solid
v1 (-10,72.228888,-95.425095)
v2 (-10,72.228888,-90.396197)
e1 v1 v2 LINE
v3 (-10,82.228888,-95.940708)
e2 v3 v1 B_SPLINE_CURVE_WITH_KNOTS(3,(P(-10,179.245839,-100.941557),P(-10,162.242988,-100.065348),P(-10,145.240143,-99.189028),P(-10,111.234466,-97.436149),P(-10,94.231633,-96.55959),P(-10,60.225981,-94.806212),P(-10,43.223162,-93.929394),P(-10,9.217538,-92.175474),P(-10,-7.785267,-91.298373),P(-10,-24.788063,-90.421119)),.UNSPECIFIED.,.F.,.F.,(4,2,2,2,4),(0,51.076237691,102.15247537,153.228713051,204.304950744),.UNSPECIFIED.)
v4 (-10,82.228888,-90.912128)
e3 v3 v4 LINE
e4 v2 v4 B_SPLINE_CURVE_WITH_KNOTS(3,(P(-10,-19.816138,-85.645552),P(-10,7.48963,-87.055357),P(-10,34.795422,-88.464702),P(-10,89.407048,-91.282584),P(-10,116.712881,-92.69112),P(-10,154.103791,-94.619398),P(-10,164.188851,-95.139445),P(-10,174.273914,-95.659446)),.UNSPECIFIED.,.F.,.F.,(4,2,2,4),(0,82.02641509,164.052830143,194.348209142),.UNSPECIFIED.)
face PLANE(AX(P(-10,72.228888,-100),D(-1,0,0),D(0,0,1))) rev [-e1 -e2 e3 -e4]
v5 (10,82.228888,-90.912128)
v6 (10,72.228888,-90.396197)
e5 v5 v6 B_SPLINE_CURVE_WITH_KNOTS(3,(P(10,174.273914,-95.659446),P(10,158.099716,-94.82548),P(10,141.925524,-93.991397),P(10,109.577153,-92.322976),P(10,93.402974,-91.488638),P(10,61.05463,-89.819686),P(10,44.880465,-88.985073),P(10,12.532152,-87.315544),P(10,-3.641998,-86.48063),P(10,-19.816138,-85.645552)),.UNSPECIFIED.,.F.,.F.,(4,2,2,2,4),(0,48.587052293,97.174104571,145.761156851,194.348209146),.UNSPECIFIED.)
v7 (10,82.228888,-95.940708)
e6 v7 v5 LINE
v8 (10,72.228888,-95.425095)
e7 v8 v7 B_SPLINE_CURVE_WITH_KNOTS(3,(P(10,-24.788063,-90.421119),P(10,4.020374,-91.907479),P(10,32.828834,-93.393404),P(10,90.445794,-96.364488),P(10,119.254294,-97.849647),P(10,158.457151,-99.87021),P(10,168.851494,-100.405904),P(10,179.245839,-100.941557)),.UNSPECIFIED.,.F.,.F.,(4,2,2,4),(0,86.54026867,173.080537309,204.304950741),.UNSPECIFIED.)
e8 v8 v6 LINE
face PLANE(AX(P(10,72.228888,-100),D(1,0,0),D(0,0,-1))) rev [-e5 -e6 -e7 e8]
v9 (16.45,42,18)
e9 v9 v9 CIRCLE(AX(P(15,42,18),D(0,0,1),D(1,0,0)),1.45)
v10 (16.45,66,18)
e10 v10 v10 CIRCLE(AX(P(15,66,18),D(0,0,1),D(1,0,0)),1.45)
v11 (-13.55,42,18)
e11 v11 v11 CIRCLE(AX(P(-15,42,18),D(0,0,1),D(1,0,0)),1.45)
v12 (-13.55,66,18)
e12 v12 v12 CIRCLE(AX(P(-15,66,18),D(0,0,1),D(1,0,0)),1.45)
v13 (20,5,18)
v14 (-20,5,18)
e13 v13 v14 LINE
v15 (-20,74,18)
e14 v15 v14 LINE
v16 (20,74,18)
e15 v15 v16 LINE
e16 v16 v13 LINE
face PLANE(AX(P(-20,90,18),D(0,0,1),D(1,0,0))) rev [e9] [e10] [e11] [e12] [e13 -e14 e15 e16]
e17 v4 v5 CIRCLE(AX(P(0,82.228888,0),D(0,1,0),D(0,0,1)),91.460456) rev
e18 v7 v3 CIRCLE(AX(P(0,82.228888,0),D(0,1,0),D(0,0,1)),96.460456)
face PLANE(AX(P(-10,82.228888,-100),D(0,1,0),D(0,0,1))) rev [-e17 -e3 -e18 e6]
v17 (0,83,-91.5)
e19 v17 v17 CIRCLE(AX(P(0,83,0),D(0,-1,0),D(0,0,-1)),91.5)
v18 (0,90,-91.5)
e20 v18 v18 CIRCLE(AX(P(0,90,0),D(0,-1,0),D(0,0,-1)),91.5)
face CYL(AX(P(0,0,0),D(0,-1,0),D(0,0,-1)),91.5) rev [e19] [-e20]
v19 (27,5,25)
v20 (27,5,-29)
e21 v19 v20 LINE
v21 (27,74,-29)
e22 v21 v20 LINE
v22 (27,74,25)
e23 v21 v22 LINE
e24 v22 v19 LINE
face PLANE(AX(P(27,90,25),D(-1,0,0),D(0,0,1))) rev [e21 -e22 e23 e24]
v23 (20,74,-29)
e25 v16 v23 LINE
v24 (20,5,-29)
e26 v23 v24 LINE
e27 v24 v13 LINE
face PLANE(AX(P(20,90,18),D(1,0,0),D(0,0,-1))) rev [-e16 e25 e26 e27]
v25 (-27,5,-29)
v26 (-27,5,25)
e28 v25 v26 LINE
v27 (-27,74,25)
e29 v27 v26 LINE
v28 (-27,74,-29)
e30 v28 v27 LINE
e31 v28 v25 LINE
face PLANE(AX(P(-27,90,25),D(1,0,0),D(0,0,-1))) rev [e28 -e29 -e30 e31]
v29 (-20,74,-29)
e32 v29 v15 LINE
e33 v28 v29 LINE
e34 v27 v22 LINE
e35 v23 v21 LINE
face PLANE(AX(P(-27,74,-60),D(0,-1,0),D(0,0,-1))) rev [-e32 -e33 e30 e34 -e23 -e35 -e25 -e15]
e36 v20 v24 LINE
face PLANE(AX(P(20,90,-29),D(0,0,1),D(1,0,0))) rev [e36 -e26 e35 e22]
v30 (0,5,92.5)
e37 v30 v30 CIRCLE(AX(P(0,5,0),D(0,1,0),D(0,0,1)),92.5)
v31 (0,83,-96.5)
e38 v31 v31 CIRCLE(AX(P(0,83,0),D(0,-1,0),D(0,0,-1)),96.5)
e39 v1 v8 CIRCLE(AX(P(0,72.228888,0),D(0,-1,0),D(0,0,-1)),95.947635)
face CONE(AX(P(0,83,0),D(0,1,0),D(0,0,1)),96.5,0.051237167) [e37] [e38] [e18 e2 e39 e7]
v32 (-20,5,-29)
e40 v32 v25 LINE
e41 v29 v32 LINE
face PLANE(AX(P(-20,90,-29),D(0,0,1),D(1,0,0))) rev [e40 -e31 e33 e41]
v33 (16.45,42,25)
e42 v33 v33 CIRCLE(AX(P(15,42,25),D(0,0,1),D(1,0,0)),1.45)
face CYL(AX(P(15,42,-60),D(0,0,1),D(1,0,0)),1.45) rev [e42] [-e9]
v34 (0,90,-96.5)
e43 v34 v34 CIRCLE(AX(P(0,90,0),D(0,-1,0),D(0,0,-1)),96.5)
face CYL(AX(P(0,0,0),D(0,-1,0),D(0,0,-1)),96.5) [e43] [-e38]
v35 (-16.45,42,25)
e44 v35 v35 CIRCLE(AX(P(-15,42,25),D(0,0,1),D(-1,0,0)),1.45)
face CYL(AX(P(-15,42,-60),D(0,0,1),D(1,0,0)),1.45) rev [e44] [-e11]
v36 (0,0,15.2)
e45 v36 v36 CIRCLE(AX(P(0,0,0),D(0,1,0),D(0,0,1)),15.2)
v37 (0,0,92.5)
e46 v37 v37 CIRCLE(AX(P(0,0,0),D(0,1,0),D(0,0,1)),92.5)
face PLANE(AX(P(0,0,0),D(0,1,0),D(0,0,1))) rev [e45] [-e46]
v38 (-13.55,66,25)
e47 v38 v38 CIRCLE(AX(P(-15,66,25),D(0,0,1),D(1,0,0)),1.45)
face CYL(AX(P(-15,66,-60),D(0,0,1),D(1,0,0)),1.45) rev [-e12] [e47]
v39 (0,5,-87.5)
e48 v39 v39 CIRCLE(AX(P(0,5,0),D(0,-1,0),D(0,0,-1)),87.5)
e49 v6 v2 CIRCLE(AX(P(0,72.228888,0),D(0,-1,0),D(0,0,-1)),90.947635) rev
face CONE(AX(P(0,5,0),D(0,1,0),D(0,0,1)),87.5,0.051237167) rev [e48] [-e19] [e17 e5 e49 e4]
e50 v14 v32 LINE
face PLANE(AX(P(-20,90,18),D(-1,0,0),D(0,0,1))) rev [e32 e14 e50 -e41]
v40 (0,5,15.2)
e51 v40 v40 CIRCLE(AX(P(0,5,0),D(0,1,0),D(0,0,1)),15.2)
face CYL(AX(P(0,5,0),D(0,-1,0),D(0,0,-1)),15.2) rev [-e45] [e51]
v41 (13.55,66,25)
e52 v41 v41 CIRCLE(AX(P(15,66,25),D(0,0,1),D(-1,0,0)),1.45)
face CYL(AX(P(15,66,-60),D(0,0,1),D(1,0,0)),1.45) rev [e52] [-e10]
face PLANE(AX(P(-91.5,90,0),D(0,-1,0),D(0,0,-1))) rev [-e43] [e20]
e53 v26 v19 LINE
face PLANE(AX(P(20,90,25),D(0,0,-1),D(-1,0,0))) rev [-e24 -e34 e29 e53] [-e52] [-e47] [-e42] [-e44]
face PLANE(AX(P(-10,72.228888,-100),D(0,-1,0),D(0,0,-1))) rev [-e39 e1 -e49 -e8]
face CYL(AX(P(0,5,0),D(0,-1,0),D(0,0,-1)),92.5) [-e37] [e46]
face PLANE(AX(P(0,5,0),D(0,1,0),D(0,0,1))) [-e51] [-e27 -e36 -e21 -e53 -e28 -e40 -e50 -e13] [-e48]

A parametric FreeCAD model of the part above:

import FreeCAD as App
import Part
import Sketcher
from FreeCAD import Vector


def add_polygon(sketch, points):
    """Adds a closed chain of lines whose ends are joined by coincident constraints."""
    first, n = sketch.GeometryCount, len(points)
    for a, b in zip(points, points[1:] + points[:1]):
        sketch.addGeometry(Part.LineSegment(App.Vector(*a, 0), App.Vector(*b, 0)), False)
    for i in range(n):
        sketch.addConstraint(Sketcher.Constraint("Coincident", first + i, 2, first + (i + 1) % n, 1))

doc = App.newDocument("Part")
params = doc.addObject("Spreadsheet::Sheet", "Params")
for row, (alias, value) in enumerate([
    ("sketch1_diameter", "185 mm"),
    ("sketch1_diameter2", "30.4 mm"),
    ("pad1_length", "5 mm"),
    ("sketch2_width", "5 mm"),
    ("revolution_angle", "360 deg"),
    ("sketch3_width", "5 mm"),
    ("sketch3_height", "7 mm"),
    ("revolution2_angle", "360 deg"),
    ("sketch4_width", "7 mm"),
    ("sketch4_width2", "40 mm"),
    ("sketch4_height", "47 mm"),
    ("pad2_length", "85 mm"),
    ("sketch5_diameter", "2.9 mm"),
    ("pocket1_length", "85 mm"),
    ("sketch6_width", "54 mm"),
    ("sketch6_height", "16 mm"),
    ("pocket2_length", "85 mm"),
    ("sketch7_width", "20 mm"),
    ("sketch7_height", "10 mm"),
    ("pocket3_length", "100 mm"),
], start=1):
    params.set(f"A{row}", alias)
    params.set(f"B{row}", "=" + value)
    params.setAlias(f"B{row}", alias)

body = doc.addObject("PartDesign::Body", "Body")

# Sketch on XZ plane
sketch1 = body.newObject("Sketcher::SketchObject", "Sketch")
sketch1.AttachmentSupport = (doc.getObject("XZ_Plane"), [""])
sketch1.MapMode = "FlatFace"
sketch1.addGeometry([
    Part.Circle(Vector(0, 0, 0), Vector(0, 0, 1), 92),
    Part.Circle(Vector(0, 0, 0), Vector(0, 0, 1), 15),
], False)
sketch1.addConstraint([
    Sketcher.Constraint("Coincident", 0, 3, -1, 1),
    Sketcher.Constraint("Coincident", 1, 3, -1, 1),
    Sketcher.Constraint("Diameter", 0, 185.0),
    Sketcher.Constraint("Diameter", 1, 30.4),
])
sketch1.setExpression("Constraints[2]", "Params.sketch1_diameter")
sketch1.setExpression("Constraints[3]", "Params.sketch1_diameter2")
pad1 = body.newObject("PartDesign::Pad", "Pad")
pad1.Profile = sketch1
pad1.setExpression("Length", "Params.pad1_length")
pad1.Reversed = True

# Sketch on XY plane
sketch2 = body.newObject("Sketcher::SketchObject", "Sketch001")
sketch2.AttachmentSupport = (doc.getObject("XY_Plane"), [""])
sketch2.MapMode = "FlatFace"
add_polygon(sketch2, [(-96, 83), (-92, 5), (-88, 5), (-92, 83)])  # lines 0-3
sketch2.addConstraint([
    Sketcher.Constraint("Horizontal", 1),
    Sketcher.Constraint("Horizontal", 3),
    Sketcher.Constraint("Parallel", 0, 2),
    Sketcher.Constraint("DistanceX", 1, 1, 1, 2, 5.0),
    Sketcher.Constraint("DistanceY", -1, 1, 0, 2, 5.0),
    Sketcher.Constraint("DistanceY", -1, 1, 2, 2, 83.0),
    Sketcher.Constraint("DistanceX", 0, 2, 2, 2, 1.0),
    Sketcher.Constraint("DistanceX", 0, 2, -1, 1, 92.5),
])
sketch2.setExpression("Constraints[7]", "Params.sketch2_width")
revolution = body.newObject("PartDesign::Revolution", "Revolution")
revolution.Profile = sketch2
revolution.ReferenceAxis = (sketch2, ["V_Axis"])
revolution.setExpression("Angle", "Params.revolution_angle")

# Sketch on XY plane
sketch3 = body.newObject("Sketcher::SketchObject", "Sketch002")
sketch3.AttachmentSupport = (doc.getObject("XY_Plane"), [""])
sketch3.MapMode = "FlatFace"
add_polygon(sketch3, [(-96, 90), (-96, 83), (-92, 83), (-92, 90)])  # lines 0-3
sketch3.addConstraint([
    Sketcher.Constraint("Vertical", 0),
    Sketcher.Constraint("Horizontal", 1),
    Sketcher.Constraint("Vertical", 2),
    Sketcher.Constraint("Horizontal", 3),
    Sketcher.Constraint("DistanceX", 1, 1, 1, 2, 5.0),
    Sketcher.Constraint("DistanceY", 0, 2, 0, 1, 7.0),
    Sketcher.Constraint("DistanceY", -1, 1, 0, 2, 83.0),
    Sketcher.Constraint("DistanceX", 0, 2, -1, 1, 96.5),
])
sketch3.setExpression("Constraints[8]", "Params.sketch3_width")
sketch3.setExpression("Constraints[9]", "Params.sketch3_height")
revolution2 = body.newObject("PartDesign::Revolution", "Revolution001")
revolution2.Profile = sketch3
revolution2.ReferenceAxis = (sketch3, ["V_Axis"])
revolution2.setExpression("Angle", "Params.revolution2_angle")

# Sketch on XZ plane
sketch4 = body.newObject("Sketcher::SketchObject", "Sketch003")
sketch4.AttachmentSupport = (doc.getObject("XZ_Plane"), [""])
sketch4.MapMode = "FlatFace"
sketch4.AttachmentOffset = App.Placement(Vector(0, 0, -5), App.Rotation())
add_polygon(sketch4, [(27, 25), (27, -29), (20, -29), (20, 18), (-20, 18), (-20, -29), (-27, -29), (-27, 25)])  # lines 0-7
sketch4.addConstraint([
    Sketcher.Constraint("Vertical", 0),
    Sketcher.Constraint("Horizontal", 1),
    Sketcher.Constraint("Vertical", 2),
    Sketcher.Constraint("Horizontal", 3),
    Sketcher.Constraint("Vertical", 4),
    Sketcher.Constraint("Horizontal", 5),
    Sketcher.Constraint("Vertical", 6),
    Sketcher.Constraint("Horizontal", 7),
    Sketcher.Constraint("Symmetric", 1, 2, 4, 2, -2),
    Sketcher.Constraint("Equal", 1, 5),
    Sketcher.Constraint("Equal", 7, 0),
    Sketcher.Constraint("DistanceX", 1, 2, 1, 1, 7.0),
    Sketcher.Constraint("DistanceX", 3, 2, 3, 1, 40.0),
    Sketcher.Constraint("DistanceY", 2, 1, 2, 2, 47.0),
    Sketcher.Constraint("DistanceY", 0, 2, -1, 1, 29.0),
])
sketch4.setExpression("Constraints[19]", "Params.sketch4_width")
sketch4.setExpression("Constraints[20]", "Params.sketch4_width2")
sketch4.setExpression("Constraints[21]", "Params.sketch4_height")
pad2 = body.newObject("PartDesign::Pad", "Pad001")
pad2.Profile = sketch4
pad2.setExpression("Length", "Params.pad2_length")
pad2.Reversed = True

# Sketch on XY plane
sketch5 = body.newObject("Sketcher::SketchObject", "Sketch004")
sketch5.AttachmentSupport = (doc.getObject("XY_Plane"), [""])
sketch5.MapMode = "FlatFace"
sketch5.AttachmentOffset = App.Placement(Vector(0, 0, 25), App.Rotation())
sketch5.addGeometry([
    Part.Circle(Vector(15, 42, 0), Vector(0, 0, 1), 1.4),
    Part.Circle(Vector(-15, 42, 0), Vector(0, 0, 1), 1.4),
    Part.Circle(Vector(-15, 66, 0), Vector(0, 0, 1), 1.4),
    Part.Circle(Vector(15, 66, 0), Vector(0, 0, 1), 1.4),
], False)
sketch5.addConstraint([
    Sketcher.Constraint("Equal", 0, 1),
    Sketcher.Constraint("Equal", 1, 2),
    Sketcher.Constraint("Equal", 2, 3),
    Sketcher.Constraint("Symmetric", 0, 3, 1, 3, -2),
    Sketcher.Constraint("Symmetric", 2, 3, 3, 3, -2),
    Sketcher.Constraint("Vertical", 1, 3, 2, 3),
    Sketcher.Constraint("Diameter", 0, 2.9),
    Sketcher.Constraint("DistanceX", -1, 1, 0, 3, 15.0),
    Sketcher.Constraint("DistanceY", -1, 1, 0, 3, 42.0),
    Sketcher.Constraint("DistanceY", -1, 1, 2, 3, 66.0),
])
sketch5.setExpression("Constraints[6]", "Params.sketch5_diameter")
pocket1 = body.newObject("PartDesign::Pocket", "Pocket")
pocket1.Profile = sketch5
pocket1.setExpression("Length", "Params.pocket1_length")

# Sketch on XY plane
sketch6 = body.newObject("Sketcher::SketchObject", "Sketch005")
sketch6.AttachmentSupport = (doc.getObject("XY_Plane"), [""])
sketch6.MapMode = "FlatFace"
sketch6.AttachmentOffset = App.Placement(Vector(0, 0, 25), App.Rotation())
add_polygon(sketch6, [(-27, 90), (-27, 74), (27, 74), (27, 90)])  # lines 0-3
sketch6.addConstraint([
    Sketcher.Constraint("Vertical", 0),
    Sketcher.Constraint("Horizontal", 1),
    Sketcher.Constraint("Vertical", 2),
    Sketcher.Constraint("Horizontal", 3),
    Sketcher.Constraint("DistanceX", 1, 1, 1, 2, 54.0),
    Sketcher.Constraint("DistanceY", 0, 2, 0, 1, 16.0),
    Sketcher.Constraint("DistanceX", 0, 2, -1, 1, 27.0),
    Sketcher.Constraint("DistanceY", -1, 1, 0, 2, 74.0),
])
sketch6.setExpression("Constraints[8]", "Params.sketch6_width")
sketch6.setExpression("Constraints[9]", "Params.sketch6_height")
pocket2 = body.newObject("PartDesign::Pocket", "Pocket001")
pocket2.Profile = sketch6
pocket2.setExpression("Length", "Params.pocket2_length")

# Sketch on XY plane
sketch7 = body.newObject("Sketcher::SketchObject", "Sketch006")
sketch7.AttachmentSupport = (doc.getObject("XY_Plane"), [""])
sketch7.MapMode = "FlatFace"
add_polygon(sketch7, [(-10, 82), (-10, 72), (10, 72), (10, 82)])  # lines 0-3
sketch7.addConstraint([
    Sketcher.Constraint("Vertical", 0),
    Sketcher.Constraint("Horizontal", 1),
    Sketcher.Constraint("Vertical", 2),
    Sketcher.Constraint("Horizontal", 3),
    Sketcher.Constraint("DistanceX", 1, 1, 1, 2, 20.0),
    Sketcher.Constraint("DistanceY", 0, 2, 0, 1, 10.0),
    Sketcher.Constraint("DistanceX", 0, 2, -1, 1, 10.0),
    Sketcher.Constraint("DistanceY", -1, 1, 0, 2, 72.228888),
])
sketch7.setExpression("Constraints[8]", "Params.sketch7_width")
sketch7.setExpression("Constraints[9]", "Params.sketch7_height")
pocket3 = body.newObject("PartDesign::Pocket", "Pocket002")
pocket3.Profile = sketch7
pocket3.setExpression("Length", "Params.pocket3_length")

doc.recompute()
